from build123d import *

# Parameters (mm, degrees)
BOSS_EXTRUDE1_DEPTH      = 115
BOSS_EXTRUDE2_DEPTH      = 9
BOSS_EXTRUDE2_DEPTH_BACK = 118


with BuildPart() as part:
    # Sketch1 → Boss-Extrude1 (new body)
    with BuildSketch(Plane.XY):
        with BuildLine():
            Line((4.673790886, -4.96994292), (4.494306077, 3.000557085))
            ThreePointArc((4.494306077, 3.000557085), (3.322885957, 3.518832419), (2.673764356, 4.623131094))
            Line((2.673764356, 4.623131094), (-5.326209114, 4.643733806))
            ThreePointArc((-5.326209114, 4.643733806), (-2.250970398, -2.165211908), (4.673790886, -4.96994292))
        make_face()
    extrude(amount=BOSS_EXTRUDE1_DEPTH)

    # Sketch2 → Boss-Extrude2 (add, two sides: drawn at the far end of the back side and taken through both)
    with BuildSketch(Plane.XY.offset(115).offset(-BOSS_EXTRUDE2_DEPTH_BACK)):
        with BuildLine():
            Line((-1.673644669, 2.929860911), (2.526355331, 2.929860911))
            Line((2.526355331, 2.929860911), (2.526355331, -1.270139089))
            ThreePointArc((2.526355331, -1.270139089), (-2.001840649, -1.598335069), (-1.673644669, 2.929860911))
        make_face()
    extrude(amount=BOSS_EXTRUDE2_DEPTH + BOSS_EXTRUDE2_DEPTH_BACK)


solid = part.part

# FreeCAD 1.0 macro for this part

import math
import FreeCAD as App
import Part
import Sketcher
from FreeCAD import Vector
Q = App.Units.Quantity

doc = App.newDocument("Part")
body = doc.addObject("PartDesign::Body", "Body")

sketch1 = body.newObject("Sketcher::SketchObject", "Sketch")
sketch1.AttachmentSupport = (doc.getObject("XY_Plane"), [""])
sketch1.MapMode = "FlatFace"
sketch1.addGeometry([
    Part.LineSegment(Vector(4.673791, -4.969943, 0), Vector(4.494306, 3.000557, 0)),
    Part.ArcOfCircle(Part.Circle(Vector(4.713634, 5.079263, 0), Vector(0, 0, 1), 2.090245), math.radians(-167.395525), math.radians(-96.023087)),
    Part.LineSegment(Vector(2.673764, 4.623131, 0), Vector(-5.326209, 4.643734, 0)),
    Part.ArcOfCircle(Part.Circle(Vector(4.713634, 5.079263, 0), Vector(0, 0, 1), 10.049285), math.radians(-177.516061), math.radians(-90.227164)),
], False)
sketch1.addConstraint([
    Sketcher.Constraint("Coincident", 0, 2, 1, 2),
    Sketcher.Constraint("Coincident", 1, 1, 2, 1),
    Sketcher.Constraint("Coincident", 2, 2, 3, 1),
    Sketcher.Constraint("Coincident", 3, 2, 0, 1),
    Sketcher.Constraint("Coincident", 3, 3, 1, 3),
    Sketcher.Constraint("Distance", 2, Q("8 mm")),
    Sketcher.Constraint("DistanceX", 2, 2, 3, 2, Q("10 mm")),
    Sketcher.Constraint("Radius", 1, Q("2.090245 mm")),
    Sketcher.Constraint("Radius", 3, Q("10.049285 mm")),
    Sketcher.Constraint("DistanceY", 3, 2, 0, 2, Q("7.9705 mm")),
    Sketcher.Constraint("DistanceY", -1, 1, 1, 1, Q("4.623131 mm")),
    Sketcher.Constraint("DistanceX", 2, 2, -1, 1, Q("5.326209 mm")),
    Sketcher.Constraint("DistanceX", 1, 1, 3, 3, Q("2.039869 mm")),
])
pad1 = body.newObject("PartDesign::Pad", "Pad")
pad1.Profile = sketch1
pad1.Length = 115

sketch2 = body.newObject("Sketcher::SketchObject", "Sketch001")
sketch2.AttachmentSupport = (doc.getObject("XY_Plane"), [""])
sketch2.MapMode = "FlatFace"
sketch2.AttachmentOffset = App.Placement(Vector(0, 0, 115), App.Rotation())
sketch2.addGeometry([
    Part.LineSegment(Vector(2.5, 2.9, 0), Vector(-1.7, 2.9, 0)),
    Part.ArcOfCircle(Part.Circle(Vector(0.1, 0.5, 0), Vector(0, 0, 1), 3), math.radians(127), math.radians(323)),
    Part.LineSegment(Vector(2.5, -1.3, 0), Vector(2.5, 2.9, 0)),
], False)
sketch2.addConstraint([
    Sketcher.Constraint("Coincident", 0, 2, 1, 1),
    Sketcher.Constraint("Coincident", 1, 2, 2, 1),
    Sketcher.Constraint("Coincident", 2, 2, 0, 1),
    Sketcher.Constraint("Horizontal", 0),
    Sketcher.Constraint("Vertical", 2),
    Sketcher.Constraint("Equal", 0, 2),
    Sketcher.Constraint("DistanceX", 0, 2, 0, 1, Q("4.2 mm")),
    Sketcher.Constraint("Radius", 1, Q("3.001215 mm")),
    Sketcher.Constraint("DistanceX", -1, 1, 1, 3, Q("0.120339 mm")),
    Sketcher.Constraint("DistanceY", -1, 1, 0, 2, Q("2.929861 mm")),
])
pad2 = body.newObject("PartDesign::Pad", "Pad001")
pad2.Profile = sketch2
pad2.Type = "TwoLengths"
pad2.Length = 9
pad2.Length2 = 118

doc.recompute()
